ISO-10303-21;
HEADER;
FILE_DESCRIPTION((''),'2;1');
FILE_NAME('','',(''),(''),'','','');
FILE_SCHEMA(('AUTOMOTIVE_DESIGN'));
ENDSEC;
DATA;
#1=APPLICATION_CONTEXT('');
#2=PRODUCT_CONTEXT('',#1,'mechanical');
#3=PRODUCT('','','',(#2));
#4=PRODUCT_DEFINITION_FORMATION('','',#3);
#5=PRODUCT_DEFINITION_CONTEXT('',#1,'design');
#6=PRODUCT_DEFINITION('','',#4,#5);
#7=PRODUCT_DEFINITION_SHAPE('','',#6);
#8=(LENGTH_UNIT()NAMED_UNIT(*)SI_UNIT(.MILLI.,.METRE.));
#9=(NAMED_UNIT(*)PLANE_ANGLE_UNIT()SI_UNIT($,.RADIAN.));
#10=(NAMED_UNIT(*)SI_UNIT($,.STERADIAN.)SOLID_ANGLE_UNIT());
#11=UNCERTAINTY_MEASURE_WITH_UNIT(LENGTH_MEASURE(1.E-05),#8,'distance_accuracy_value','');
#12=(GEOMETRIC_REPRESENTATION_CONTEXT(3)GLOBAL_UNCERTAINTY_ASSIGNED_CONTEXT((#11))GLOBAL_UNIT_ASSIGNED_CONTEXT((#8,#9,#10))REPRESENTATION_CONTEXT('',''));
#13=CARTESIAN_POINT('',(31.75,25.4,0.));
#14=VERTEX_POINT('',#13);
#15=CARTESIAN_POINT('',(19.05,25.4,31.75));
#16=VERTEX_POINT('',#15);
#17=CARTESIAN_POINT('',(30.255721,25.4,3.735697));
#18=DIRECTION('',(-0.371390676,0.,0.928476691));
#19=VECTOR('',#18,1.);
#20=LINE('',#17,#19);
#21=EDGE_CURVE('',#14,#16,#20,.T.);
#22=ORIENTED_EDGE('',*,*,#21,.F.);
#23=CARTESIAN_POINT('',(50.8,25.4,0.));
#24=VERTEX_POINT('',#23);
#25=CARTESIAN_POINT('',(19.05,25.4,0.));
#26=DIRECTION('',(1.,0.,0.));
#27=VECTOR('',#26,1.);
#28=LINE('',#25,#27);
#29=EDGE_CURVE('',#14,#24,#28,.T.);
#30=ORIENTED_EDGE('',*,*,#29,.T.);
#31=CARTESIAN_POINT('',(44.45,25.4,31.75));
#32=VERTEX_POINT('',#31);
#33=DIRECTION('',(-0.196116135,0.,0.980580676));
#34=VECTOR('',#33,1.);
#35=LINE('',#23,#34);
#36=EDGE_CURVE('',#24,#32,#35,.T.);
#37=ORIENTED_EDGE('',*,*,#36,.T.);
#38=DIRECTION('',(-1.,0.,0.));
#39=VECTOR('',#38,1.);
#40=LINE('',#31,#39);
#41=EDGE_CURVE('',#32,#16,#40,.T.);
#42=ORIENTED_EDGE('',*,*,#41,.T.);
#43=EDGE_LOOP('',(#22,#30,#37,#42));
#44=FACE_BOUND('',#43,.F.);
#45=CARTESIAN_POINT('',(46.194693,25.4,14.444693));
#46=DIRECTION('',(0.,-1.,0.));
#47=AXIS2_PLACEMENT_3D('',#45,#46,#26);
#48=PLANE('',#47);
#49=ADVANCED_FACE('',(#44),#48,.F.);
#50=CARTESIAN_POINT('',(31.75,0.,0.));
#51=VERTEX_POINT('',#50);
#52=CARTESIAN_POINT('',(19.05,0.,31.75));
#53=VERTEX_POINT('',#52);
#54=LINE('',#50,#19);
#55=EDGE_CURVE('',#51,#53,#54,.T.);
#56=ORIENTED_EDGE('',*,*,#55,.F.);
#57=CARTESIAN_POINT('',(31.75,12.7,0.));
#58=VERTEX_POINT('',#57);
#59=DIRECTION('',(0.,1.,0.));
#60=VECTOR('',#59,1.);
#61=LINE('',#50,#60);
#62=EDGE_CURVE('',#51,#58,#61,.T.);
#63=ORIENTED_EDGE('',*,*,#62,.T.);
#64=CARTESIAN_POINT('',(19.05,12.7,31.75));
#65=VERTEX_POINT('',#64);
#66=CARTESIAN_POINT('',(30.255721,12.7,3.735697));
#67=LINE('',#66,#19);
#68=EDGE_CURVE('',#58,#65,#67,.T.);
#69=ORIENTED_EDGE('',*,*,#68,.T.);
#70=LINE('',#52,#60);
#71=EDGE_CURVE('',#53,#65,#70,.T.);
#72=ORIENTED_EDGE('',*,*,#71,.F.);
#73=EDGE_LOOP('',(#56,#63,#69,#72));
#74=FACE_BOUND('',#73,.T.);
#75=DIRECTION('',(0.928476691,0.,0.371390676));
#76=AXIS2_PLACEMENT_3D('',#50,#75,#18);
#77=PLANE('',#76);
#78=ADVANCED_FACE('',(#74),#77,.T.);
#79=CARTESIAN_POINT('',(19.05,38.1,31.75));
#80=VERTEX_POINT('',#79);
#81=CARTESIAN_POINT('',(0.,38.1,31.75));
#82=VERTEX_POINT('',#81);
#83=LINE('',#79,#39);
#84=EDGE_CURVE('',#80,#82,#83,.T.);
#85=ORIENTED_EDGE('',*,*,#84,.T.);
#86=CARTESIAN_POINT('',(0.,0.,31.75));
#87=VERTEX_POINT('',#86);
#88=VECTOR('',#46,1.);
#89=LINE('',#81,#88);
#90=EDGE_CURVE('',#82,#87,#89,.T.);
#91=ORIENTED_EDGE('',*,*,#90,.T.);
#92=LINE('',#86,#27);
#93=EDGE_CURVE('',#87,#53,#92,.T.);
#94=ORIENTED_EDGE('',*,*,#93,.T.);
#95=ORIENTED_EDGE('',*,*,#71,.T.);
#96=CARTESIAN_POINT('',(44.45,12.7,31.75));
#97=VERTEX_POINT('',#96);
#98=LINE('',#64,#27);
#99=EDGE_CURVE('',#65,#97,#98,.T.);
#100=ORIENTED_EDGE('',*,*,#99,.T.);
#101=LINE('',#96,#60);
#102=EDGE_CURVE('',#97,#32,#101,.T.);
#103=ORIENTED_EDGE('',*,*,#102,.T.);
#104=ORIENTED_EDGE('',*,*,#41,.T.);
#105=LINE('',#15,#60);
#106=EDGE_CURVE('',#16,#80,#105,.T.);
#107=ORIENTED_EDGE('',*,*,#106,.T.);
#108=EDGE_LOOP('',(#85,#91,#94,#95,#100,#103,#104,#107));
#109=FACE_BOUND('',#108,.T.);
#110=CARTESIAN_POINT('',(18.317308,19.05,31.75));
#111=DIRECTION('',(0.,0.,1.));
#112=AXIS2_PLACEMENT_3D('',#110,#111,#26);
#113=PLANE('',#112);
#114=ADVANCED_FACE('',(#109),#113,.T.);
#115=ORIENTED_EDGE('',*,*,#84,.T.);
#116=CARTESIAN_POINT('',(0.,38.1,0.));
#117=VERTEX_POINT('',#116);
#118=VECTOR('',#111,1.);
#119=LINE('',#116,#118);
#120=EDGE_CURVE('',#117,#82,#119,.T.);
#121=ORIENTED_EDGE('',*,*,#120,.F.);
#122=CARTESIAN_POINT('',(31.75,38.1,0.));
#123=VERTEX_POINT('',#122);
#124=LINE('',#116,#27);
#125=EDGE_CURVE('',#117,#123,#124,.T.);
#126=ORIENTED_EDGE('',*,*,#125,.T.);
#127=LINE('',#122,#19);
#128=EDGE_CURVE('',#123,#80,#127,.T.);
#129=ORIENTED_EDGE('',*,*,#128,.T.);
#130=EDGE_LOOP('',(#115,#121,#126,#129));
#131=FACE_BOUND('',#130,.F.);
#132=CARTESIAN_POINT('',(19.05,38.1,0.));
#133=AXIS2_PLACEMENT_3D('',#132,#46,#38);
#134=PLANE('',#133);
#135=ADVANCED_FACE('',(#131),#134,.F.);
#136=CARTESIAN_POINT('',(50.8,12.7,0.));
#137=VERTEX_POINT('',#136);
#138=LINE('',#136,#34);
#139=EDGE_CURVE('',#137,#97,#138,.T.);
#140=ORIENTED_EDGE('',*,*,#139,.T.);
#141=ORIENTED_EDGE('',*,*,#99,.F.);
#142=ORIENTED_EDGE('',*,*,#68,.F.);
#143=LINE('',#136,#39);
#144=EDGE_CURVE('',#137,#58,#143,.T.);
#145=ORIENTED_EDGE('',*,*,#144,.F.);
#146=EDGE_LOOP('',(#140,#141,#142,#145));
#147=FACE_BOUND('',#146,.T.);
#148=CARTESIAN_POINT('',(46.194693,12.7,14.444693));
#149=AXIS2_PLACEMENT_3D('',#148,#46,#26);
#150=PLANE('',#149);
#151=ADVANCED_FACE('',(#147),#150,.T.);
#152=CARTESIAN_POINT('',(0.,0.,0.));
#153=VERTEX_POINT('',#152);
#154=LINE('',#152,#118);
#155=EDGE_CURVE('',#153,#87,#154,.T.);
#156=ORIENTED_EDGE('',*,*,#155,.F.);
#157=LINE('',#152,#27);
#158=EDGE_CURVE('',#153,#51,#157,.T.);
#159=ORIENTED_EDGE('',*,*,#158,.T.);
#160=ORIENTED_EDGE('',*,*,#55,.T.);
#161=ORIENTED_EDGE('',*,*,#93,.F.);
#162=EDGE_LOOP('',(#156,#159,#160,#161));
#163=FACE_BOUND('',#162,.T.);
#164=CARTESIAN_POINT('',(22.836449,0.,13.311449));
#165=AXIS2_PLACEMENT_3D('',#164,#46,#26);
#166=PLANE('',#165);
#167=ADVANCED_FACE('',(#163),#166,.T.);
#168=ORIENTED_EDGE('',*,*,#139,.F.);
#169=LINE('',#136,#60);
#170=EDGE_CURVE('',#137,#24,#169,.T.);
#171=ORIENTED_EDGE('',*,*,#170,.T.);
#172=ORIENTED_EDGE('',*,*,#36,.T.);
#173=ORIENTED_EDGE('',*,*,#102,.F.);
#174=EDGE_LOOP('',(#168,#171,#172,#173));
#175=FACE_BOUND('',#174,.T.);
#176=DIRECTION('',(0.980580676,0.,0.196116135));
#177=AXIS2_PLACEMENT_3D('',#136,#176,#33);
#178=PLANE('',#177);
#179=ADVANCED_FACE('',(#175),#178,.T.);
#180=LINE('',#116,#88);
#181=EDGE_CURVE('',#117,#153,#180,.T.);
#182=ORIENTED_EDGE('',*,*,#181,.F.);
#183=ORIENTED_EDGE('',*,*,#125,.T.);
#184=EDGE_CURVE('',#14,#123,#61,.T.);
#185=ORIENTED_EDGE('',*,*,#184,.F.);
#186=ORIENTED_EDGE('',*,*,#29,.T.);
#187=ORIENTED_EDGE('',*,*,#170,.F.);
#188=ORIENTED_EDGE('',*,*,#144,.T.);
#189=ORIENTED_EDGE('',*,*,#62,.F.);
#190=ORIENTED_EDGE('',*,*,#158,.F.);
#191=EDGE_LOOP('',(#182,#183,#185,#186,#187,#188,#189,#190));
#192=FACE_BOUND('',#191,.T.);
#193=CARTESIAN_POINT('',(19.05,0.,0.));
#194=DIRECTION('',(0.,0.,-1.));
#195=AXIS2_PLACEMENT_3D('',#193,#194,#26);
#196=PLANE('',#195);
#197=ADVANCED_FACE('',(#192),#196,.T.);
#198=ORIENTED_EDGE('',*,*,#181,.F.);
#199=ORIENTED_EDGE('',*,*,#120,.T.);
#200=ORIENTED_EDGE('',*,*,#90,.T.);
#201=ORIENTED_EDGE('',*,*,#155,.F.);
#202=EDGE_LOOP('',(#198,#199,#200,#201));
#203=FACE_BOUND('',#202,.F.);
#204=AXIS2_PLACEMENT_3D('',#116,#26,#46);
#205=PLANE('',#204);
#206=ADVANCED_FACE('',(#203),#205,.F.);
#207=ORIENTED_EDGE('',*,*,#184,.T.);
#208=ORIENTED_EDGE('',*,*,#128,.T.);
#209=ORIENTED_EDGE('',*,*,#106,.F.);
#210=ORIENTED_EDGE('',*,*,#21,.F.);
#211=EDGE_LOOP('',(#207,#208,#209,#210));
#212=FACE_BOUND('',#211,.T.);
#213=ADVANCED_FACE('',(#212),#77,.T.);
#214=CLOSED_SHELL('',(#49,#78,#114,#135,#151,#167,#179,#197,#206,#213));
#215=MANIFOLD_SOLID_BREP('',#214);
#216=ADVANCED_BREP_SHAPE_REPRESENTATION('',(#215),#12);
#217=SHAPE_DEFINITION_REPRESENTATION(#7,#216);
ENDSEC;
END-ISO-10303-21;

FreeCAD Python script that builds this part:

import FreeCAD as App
import Part
import Sketcher

V = App.Vector
Q = App.Units.Quantity

doc = App.newDocument("Part")
body = doc.addObject("PartDesign::Body", "Body")

sketch1 = doc.addObject("Sketcher::SketchObject", "Sketch")
body.addObject(sketch1)
sketch1.AttachmentSupport = (doc.XY_Plane, [""])
sketch1.MapMode = "FlatFace"
sketch1.addGeometry([
    Part.LineSegment(V(0, 38, 0), V(0, 0, 0)),
    Part.LineSegment(V(0, 0, 0), V(19, 0, 0)),
    Part.LineSegment(V(19, 0, 0), V(19, 13, 0)),
    Part.LineSegment(V(19, 13, 0), V(44, 13, 0)),
    Part.LineSegment(V(44, 13, 0), V(44, 25, 0)),
    Part.LineSegment(V(44, 25, 0), V(19, 25, 0)),
    Part.LineSegment(V(19, 25, 0), V(19, 38, 0)),
    Part.LineSegment(V(19, 38, 0), V(0, 38, 0)),
], False)
sketch1.addConstraint([
    Sketcher.Constraint("Coincident", 0, 2, 1, 1),
    Sketcher.Constraint("Coincident", 1, 2, 2, 1),
    Sketcher.Constraint("Coincident", 2, 2, 3, 1),
    Sketcher.Constraint("Coincident", 3, 2, 4, 1),
    Sketcher.Constraint("Coincident", 4, 2, 5, 1),
    Sketcher.Constraint("Coincident", 5, 2, 6, 1),
    Sketcher.Constraint("Coincident", 6, 2, 7, 1),
    Sketcher.Constraint("Coincident", 7, 2, 0, 1),
    Sketcher.Constraint("Vertical", 0),
    Sketcher.Constraint("Horizontal", 1),
    Sketcher.Constraint("Vertical", 2),
    Sketcher.Constraint("Horizontal", 3),
    Sketcher.Constraint("Vertical", 4),
    Sketcher.Constraint("Horizontal", 5),
    Sketcher.Constraint("Vertical", 6),
    Sketcher.Constraint("Horizontal", 7),
    Sketcher.Constraint("Coincident", 0, 2, -1, 1),
    Sketcher.Constraint("Vertical", 2, 2, 5, 2),
    Sketcher.Constraint("Equal", 2, 4),
    Sketcher.Constraint("Equal", 4, 6),
    Sketcher.Constraint("DistanceX", 3, 1, 3, 2, Q("1 in")),
    Sketcher.Constraint("DistanceY", 0, 2, 0, 1, Q("1.5 in")),
    Sketcher.Constraint("DistanceX", 1, 1, 1, 2, Q("0.75 in")),
])
pad1 = doc.addObject("PartDesign::Pad", "Pad")
body.addObject(pad1)
pad1.Profile = sketch1
pad1.Length = Q("1.25 in")

sketch2 = doc.addObject("Sketcher::SketchObject", "Sketch001")
body.addObject(sketch2)
sketch2.AttachmentSupport = (doc.XZ_Plane, [""])
sketch2.MapMode = "FlatFace"
sketch2.AttachmentOffset = App.Placement(V(0, 0, -0.5 * 25.4), App.Rotation())
sketch2.addGeometry([
    Part.LineSegment(V(51, 0, 0), V(44, 32, 0)),
    Part.LineSegment(V(44, 32, 0), V(44, 0, 0)),
    Part.LineSegment(V(44, 0, 0), V(51, 0, 0)),
], False)
sketch2.addConstraint([
    Sketcher.Constraint("Coincident", 0, 2, 1, 1),
    Sketcher.Constraint("Coincident", 1, 2, 2, 1),
    Sketcher.Constraint("Coincident", 2, 2, 0, 1),
    Sketcher.Constraint("Vertical", 1),
    Sketcher.Constraint("Horizontal", 2),
    Sketcher.Constraint("PointOnObject", 1, 2, -1),
    Sketcher.Constraint("DistanceX", -1, 1, 2, 2, Q("2 in")),
    Sketcher.Constraint("DistanceX", 2, 1, 2, 2, Q("0.25 in")),
    Sketcher.Constraint("DistanceY", 1, 2, 1, 1, Q("1.25 in")),
])
pad2 = doc.addObject("PartDesign::Pad", "Pad001")
body.addObject(pad2)
pad2.Profile = sketch2
pad2.Length = Q("0.5 in")
pad2.Reversed = True

sketch3 = doc.addObject("Sketcher::SketchObject", "Sketch002")
body.addObject(sketch3)
sketch3.AttachmentSupport = (doc.XZ_Plane, [""])
sketch3.MapMode = "FlatFace"
sketch3.addGeometry([
    Part.LineSegment(V(32, 0, 0), V(19, 32, 0)),
    Part.LineSegment(V(19, 32, 0), V(19, 0, 0)),
    Part.LineSegment(V(19, 0, 0), V(32, 0, 0)),
], False)
sketch3.addConstraint([
    Sketcher.Constraint("Coincident", 0, 2, 1, 1),
    Sketcher.Constraint("Coincident", 1, 2, 2, 1),
    Sketcher.Constraint("Coincident", 2, 2, 0, 1),
    Sketcher.Constraint("Vertical", 1),
    Sketcher.Constraint("Horizontal", 2),
    Sketcher.Constraint("PointOnObject", 1, 2, -1),
    Sketcher.Constraint("DistanceX", 2, 1, 2, 2, Q("0.5 in")),
    Sketcher.Constraint("DistanceY", 1, 2, 1, 1, Q("1.25 in")),
    Sketcher.Constraint("DistanceX", -1, 1, 0, 2, Q("0.75 in")),
])
pad3 = doc.addObject("PartDesign::Pad", "Pad002")
body.addObject(pad3)
pad3.Profile = sketch3
pad3.Length = Q("1.5 in")
pad3.Reversed = True

doc.recompute()
